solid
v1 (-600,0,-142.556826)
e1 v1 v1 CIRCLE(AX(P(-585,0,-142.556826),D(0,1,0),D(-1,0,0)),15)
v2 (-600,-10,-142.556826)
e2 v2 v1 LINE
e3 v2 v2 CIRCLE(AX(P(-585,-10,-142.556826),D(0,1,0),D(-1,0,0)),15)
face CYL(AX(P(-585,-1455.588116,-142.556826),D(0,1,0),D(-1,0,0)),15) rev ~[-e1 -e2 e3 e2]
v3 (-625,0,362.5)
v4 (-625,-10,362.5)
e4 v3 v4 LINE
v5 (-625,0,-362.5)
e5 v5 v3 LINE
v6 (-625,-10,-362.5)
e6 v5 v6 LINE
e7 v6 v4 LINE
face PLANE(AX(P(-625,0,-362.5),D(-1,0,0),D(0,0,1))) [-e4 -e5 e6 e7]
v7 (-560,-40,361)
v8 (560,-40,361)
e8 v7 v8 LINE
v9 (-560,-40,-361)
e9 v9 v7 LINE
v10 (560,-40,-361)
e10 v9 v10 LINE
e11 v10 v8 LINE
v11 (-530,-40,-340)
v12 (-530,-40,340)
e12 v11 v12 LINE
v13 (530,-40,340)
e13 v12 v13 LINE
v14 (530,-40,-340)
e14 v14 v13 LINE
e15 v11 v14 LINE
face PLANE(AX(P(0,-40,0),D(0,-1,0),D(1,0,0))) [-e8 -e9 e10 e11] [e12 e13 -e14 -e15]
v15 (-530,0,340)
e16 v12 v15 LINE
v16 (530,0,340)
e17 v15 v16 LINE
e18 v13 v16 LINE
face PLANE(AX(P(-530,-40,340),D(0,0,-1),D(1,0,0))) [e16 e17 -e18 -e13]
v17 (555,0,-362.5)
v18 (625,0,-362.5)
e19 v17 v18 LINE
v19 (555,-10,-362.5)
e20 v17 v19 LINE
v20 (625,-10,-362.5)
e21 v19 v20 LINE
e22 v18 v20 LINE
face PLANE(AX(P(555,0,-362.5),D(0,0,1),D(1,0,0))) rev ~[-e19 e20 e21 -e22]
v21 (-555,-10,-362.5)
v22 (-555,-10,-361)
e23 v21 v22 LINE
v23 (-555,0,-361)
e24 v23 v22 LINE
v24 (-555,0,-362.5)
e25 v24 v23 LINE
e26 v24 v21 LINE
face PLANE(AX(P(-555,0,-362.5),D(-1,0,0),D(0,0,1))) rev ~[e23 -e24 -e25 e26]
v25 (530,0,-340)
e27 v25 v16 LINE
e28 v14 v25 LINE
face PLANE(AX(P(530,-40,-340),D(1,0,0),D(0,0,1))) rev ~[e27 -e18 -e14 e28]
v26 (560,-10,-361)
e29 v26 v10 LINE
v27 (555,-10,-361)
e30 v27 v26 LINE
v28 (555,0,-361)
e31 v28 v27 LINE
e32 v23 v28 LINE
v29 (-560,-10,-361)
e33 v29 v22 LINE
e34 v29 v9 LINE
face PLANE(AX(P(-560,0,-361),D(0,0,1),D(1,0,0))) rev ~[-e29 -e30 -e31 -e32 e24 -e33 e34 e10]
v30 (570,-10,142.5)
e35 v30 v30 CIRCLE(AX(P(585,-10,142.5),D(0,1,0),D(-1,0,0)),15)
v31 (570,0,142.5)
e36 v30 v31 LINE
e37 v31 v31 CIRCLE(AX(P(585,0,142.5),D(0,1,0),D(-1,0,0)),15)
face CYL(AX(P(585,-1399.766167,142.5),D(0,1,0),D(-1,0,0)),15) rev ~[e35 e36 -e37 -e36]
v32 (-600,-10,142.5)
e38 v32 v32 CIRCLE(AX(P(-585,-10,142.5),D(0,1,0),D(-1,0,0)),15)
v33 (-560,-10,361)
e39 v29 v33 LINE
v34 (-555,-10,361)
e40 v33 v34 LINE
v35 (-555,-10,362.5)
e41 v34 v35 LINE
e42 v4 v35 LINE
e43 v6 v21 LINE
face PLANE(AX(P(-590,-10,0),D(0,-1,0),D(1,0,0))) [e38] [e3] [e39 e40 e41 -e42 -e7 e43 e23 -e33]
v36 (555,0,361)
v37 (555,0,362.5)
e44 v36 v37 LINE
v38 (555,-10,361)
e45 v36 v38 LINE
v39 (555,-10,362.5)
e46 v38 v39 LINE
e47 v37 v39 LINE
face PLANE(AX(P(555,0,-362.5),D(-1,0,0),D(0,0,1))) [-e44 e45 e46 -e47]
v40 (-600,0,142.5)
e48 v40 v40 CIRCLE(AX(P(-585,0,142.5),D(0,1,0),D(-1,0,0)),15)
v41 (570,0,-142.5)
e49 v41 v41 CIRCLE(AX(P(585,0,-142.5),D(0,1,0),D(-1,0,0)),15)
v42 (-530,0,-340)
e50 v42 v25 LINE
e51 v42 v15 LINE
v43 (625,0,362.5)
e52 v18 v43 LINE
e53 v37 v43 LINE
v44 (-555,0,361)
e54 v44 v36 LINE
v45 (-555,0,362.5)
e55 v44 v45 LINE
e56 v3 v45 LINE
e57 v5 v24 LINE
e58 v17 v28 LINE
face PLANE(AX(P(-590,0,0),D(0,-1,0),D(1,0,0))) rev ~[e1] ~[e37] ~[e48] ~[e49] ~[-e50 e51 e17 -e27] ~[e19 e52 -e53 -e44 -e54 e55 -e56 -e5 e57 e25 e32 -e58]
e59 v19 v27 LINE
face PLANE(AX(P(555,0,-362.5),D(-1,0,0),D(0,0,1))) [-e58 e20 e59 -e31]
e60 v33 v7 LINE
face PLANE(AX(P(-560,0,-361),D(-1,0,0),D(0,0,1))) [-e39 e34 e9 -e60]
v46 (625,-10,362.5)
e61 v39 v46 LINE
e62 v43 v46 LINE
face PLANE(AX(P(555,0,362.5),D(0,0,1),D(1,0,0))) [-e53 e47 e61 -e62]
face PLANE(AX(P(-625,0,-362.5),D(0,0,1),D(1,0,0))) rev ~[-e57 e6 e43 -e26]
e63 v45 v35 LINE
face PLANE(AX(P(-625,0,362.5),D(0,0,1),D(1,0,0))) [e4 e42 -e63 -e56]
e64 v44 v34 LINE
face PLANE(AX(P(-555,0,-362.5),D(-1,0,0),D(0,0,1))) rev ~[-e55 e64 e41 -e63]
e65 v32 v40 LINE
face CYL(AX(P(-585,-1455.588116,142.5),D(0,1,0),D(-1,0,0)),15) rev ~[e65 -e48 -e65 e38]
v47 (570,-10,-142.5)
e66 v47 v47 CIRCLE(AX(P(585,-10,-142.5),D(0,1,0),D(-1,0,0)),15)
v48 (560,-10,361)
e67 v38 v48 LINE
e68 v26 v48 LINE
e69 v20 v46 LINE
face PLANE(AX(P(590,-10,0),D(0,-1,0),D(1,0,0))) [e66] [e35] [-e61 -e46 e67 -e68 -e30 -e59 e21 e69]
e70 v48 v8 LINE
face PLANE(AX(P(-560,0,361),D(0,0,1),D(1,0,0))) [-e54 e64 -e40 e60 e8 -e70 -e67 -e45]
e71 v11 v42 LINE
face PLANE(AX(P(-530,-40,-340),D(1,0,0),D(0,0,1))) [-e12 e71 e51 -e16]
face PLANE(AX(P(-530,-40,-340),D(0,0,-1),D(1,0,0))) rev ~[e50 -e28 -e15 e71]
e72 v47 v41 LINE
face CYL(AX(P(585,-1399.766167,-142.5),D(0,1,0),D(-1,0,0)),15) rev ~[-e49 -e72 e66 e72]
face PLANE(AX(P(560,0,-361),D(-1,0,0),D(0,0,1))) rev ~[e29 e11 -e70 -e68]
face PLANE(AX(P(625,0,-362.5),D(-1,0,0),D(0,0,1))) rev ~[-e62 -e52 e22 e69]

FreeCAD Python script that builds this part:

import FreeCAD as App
import Part
import Sketcher
from FreeCAD import Vector
Q = App.Units.Quantity


def add_polygon(sketch, points):
    """Adds a closed chain of lines whose ends are joined by coincident constraints."""
    first, n = sketch.GeometryCount, len(points)
    for a, b in zip(points, points[1:] + points[:1]):
        sketch.addGeometry(Part.LineSegment(App.Vector(*a, 0), App.Vector(*b, 0)), False)
    for i in range(n):
        sketch.addConstraint(Sketcher.Constraint("Coincident", first + i, 2, first + (i + 1) % n, 1))

doc = App.newDocument("Part")
params = doc.addObject("Spreadsheet::Sheet", "Params")
for row, (alias, value) in enumerate([
    ("sketch1_width", "1120 mm"),
    ("sketch1_height", "722 mm"),
    ("pad1_length", "40 mm"),
    ("sketch2_width", "70 mm"),
    ("sketch2_height", "725 mm"),
    ("pad2_length", "10 mm"),
    ("sketch3_diameter", "30 mm"),
    ("hole_diameter", "30 mm"),
    ("sketch4_diameter", "30 mm"),
    ("hole2_diameter", "30 mm"),
    ("sketch5_width", "70 mm"),
    ("sketch5_height", "725 mm"),
    ("pad3_length", "10 mm"),
    ("sketch6_diameter", "30 mm"),
    ("hole3_diameter", "30 mm"),
    ("sketch7_width", "1060 mm"),
    ("sketch7_height", "680 mm"),
], start=1):
    params.set(f"A{row}", alias)
    params.set(f"B{row}", "=" + value)
    params.setAlias(f"B{row}", alias)

body = doc.addObject("PartDesign::Body", "Body")

# Sketch on XZ plane
sketch1 = body.newObject("Sketcher::SketchObject", "Sketch")
sketch1.AttachmentSupport = (doc.getObject("XZ_Plane"), [""])
sketch1.MapMode = "FlatFace"
add_polygon(sketch1, [(-560, 361), (-560, -361), (560, -361), (560, 361)])  # lines 0-3
sketch1.addConstraint([
    Sketcher.Constraint("Vertical", 0),
    Sketcher.Constraint("Horizontal", 1),
    Sketcher.Constraint("Vertical", 2),
    Sketcher.Constraint("Horizontal", 3),
    Sketcher.Constraint("Symmetric", 0, 2, 2, 2, -1, 1),
    Sketcher.Constraint("DistanceX", 1, 1, 1, 2, Q("1120 mm")),
    Sketcher.Constraint("DistanceY", 0, 2, 0, 1, Q("722 mm")),
])
sketch1.setExpression("Constraints[9]", "Params.sketch1_width")
sketch1.setExpression("Constraints[10]", "Params.sketch1_height")
pad1 = body.newObject("PartDesign::Pad", "Pad")
pad1.Profile = sketch1
pad1.setExpression("Length", "Params.pad1_length")

# Sketch on XZ plane
sketch2 = body.newObject("Sketcher::SketchObject", "Sketch001")
sketch2.AttachmentSupport = (doc.getObject("XZ_Plane"), [""])
sketch2.MapMode = "FlatFace"
add_polygon(sketch2, [(555, 362), (555, -362), (625, -362), (625, 362)])  # lines 0-3
sketch2.addConstraint([
    Sketcher.Constraint("Vertical", 0),
    Sketcher.Constraint("Horizontal", 1),
    Sketcher.Constraint("Vertical", 2),
    Sketcher.Constraint("Horizontal", 3),
    Sketcher.Constraint("DistanceX", 1, 1, 1, 2, Q("70 mm")),
    Sketcher.Constraint("DistanceY", 0, 2, 0, 1, Q("725 mm")),
    Sketcher.Constraint("DistanceX", -1, 1, 0, 2, Q("555 mm")),
    Sketcher.Constraint("DistanceY", 0, 2, -1, 1, Q("362.5 mm")),
])
sketch2.setExpression("Constraints[8]", "Params.sketch2_width")
sketch2.setExpression("Constraints[9]", "Params.sketch2_height")
pad2 = body.newObject("PartDesign::Pad", "Pad001")
pad2.Profile = sketch2
pad2.setExpression("Length", "Params.pad2_length")

# Sketch on XZ plane
sketch3 = body.newObject("Sketcher::SketchObject", "Sketch002")
sketch3.AttachmentSupport = (doc.getObject("XZ_Plane"), [""])
sketch3.MapMode = "FlatFace"
sketch3.AttachmentOffset = App.Placement(Vector(0, 0, 10), App.Rotation())
sketch3.addGeometry(Part.Circle(Vector(585, 142, 0), Vector(0, 0, 1), 15), False)
sketch3.addConstraint([
    Sketcher.Constraint("Diameter", 0, Q("30 mm")),
    Sketcher.Constraint("DistanceX", -1, 1, 0, 3, Q("585 mm")),
    Sketcher.Constraint("DistanceY", -1, 1, 0, 3, Q("142.5 mm")),
])
sketch3.setExpression("Constraints[0]", "Params.sketch3_diameter")
doc.recompute()
hole = body.newObject("PartDesign::Hole", "Hole")
hole.Profile = sketch3
hole.ThreadType = "None"
hole.setExpression("Diameter", "Params.hole_diameter")
hole.DepthType = "ThroughAll"

# Sketch on XZ plane
sketch4 = body.newObject("Sketcher::SketchObject", "Sketch003")
sketch4.AttachmentSupport = (doc.getObject("XZ_Plane"), [""])
sketch4.MapMode = "FlatFace"
sketch4.AttachmentOffset = App.Placement(Vector(0, 0, 10), App.Rotation())
sketch4.addGeometry(Part.Circle(Vector(585, -142, 0), Vector(0, 0, 1), 15), False)
sketch4.addConstraint([
    Sketcher.Constraint("Diameter", 0, Q("30 mm")),
    Sketcher.Constraint("DistanceX", -1, 1, 0, 3, Q("585 mm")),
    Sketcher.Constraint("DistanceY", 0, 3, -1, 1, Q("142.5 mm")),
])
sketch4.setExpression("Constraints[0]", "Params.sketch4_diameter")
doc.recompute()
hole2 = body.newObject("PartDesign::Hole", "Hole001")
hole2.Profile = sketch4
hole2.ThreadType = "None"
hole2.setExpression("Diameter", "Params.hole2_diameter")
hole2.DepthType = "ThroughAll"

# Sketch on XZ plane
sketch5 = body.newObject("Sketcher::SketchObject", "Sketch004")
sketch5.AttachmentSupport = (doc.getObject("XZ_Plane"), [""])
sketch5.MapMode = "FlatFace"
add_polygon(sketch5, [(-625, 362), (-625, -362), (-555, -362), (-555, 362)])  # lines 0-3
sketch5.addConstraint([
    Sketcher.Constraint("Vertical", 0),
    Sketcher.Constraint("Horizontal", 1),
    Sketcher.Constraint("Vertical", 2),
    Sketcher.Constraint("Horizontal", 3),
    Sketcher.Constraint("DistanceX", 1, 1, 1, 2, Q("70 mm")),
    Sketcher.Constraint("DistanceY", 0, 2, 0, 1, Q("725 mm")),
    Sketcher.Constraint("DistanceX", 0, 2, -1, 1, Q("625 mm")),
    Sketcher.Constraint("DistanceY", 0, 2, -1, 1, Q("362.5 mm")),
])
sketch5.setExpression("Constraints[8]", "Params.sketch5_width")
sketch5.setExpression("Constraints[9]", "Params.sketch5_height")
pad3 = body.newObject("PartDesign::Pad", "Pad002")
pad3.Profile = sketch5
pad3.setExpression("Length", "Params.pad3_length")

# Sketch on XZ plane
sketch6 = body.newObject("Sketcher::SketchObject", "Sketch005")
sketch6.AttachmentSupport = (doc.getObject("XZ_Plane"), [""])
sketch6.MapMode = "FlatFace"
sketch6.AttachmentOffset = App.Placement(Vector(0, 0, 10), App.Rotation())
sketch6.addGeometry([
    Part.Circle(Vector(-585, 142, 0), Vector(0, 0, 1), 15),
    Part.Circle(Vector(-585, -143, 0), Vector(0, 0, 1), 15),
], False)
sketch6.addConstraint([
    Sketcher.Constraint("Equal", 0, 1),
    Sketcher.Constraint("Vertical", 0, 3, 1, 3),
    Sketcher.Constraint("Diameter", 0, Q("30 mm")),
    Sketcher.Constraint("DistanceX", 0, 3, -1, 1, Q("585 mm")),
    Sketcher.Constraint("DistanceY", -1, 1, 0, 3, Q("142.5 mm")),
    Sketcher.Constraint("DistanceY", 1, 3, -1, 1, Q("142.556826 mm")),
])
sketch6.setExpression("Constraints[2]", "Params.sketch6_diameter")
doc.recompute()
hole3 = body.newObject("PartDesign::Hole", "Hole002")
hole3.Profile = sketch6
hole3.ThreadType = "None"
hole3.setExpression("Diameter", "Params.hole3_diameter")
hole3.DepthType = "ThroughAll"

# Sketch on XZ plane
sketch7 = body.newObject("Sketcher::SketchObject", "Sketch006")
sketch7.AttachmentSupport = (doc.getObject("XZ_Plane"), [""])
sketch7.MapMode = "FlatFace"
sketch7.AttachmentOffset = App.Placement(Vector(0, 0, 40), App.Rotation())
add_polygon(sketch7, [(-530, 340), (-530, -340), (530, -340), (530, 340)])  # lines 0-3
sketch7.addConstraint([
    Sketcher.Constraint("Vertical", 0),
    Sketcher.Constraint("Horizontal", 1),
    Sketcher.Constraint("Vertical", 2),
    Sketcher.Constraint("Horizontal", 3),
    Sketcher.Constraint("Symmetric", 0, 2, 2, 2, -1, 1),
    Sketcher.Constraint("DistanceX", 1, 1, 1, 2, Q("1060 mm")),
    Sketcher.Constraint("DistanceY", 0, 2, 0, 1, Q("680 mm")),
])
sketch7.setExpression("Constraints[9]", "Params.sketch7_width")
sketch7.setExpression("Constraints[10]", "Params.sketch7_height")
pocket1 = body.newObject("PartDesign::Pocket", "Pocket")
pocket1.Profile = sketch7
pocket1.Type = "ThroughAll"

doc.recompute()
